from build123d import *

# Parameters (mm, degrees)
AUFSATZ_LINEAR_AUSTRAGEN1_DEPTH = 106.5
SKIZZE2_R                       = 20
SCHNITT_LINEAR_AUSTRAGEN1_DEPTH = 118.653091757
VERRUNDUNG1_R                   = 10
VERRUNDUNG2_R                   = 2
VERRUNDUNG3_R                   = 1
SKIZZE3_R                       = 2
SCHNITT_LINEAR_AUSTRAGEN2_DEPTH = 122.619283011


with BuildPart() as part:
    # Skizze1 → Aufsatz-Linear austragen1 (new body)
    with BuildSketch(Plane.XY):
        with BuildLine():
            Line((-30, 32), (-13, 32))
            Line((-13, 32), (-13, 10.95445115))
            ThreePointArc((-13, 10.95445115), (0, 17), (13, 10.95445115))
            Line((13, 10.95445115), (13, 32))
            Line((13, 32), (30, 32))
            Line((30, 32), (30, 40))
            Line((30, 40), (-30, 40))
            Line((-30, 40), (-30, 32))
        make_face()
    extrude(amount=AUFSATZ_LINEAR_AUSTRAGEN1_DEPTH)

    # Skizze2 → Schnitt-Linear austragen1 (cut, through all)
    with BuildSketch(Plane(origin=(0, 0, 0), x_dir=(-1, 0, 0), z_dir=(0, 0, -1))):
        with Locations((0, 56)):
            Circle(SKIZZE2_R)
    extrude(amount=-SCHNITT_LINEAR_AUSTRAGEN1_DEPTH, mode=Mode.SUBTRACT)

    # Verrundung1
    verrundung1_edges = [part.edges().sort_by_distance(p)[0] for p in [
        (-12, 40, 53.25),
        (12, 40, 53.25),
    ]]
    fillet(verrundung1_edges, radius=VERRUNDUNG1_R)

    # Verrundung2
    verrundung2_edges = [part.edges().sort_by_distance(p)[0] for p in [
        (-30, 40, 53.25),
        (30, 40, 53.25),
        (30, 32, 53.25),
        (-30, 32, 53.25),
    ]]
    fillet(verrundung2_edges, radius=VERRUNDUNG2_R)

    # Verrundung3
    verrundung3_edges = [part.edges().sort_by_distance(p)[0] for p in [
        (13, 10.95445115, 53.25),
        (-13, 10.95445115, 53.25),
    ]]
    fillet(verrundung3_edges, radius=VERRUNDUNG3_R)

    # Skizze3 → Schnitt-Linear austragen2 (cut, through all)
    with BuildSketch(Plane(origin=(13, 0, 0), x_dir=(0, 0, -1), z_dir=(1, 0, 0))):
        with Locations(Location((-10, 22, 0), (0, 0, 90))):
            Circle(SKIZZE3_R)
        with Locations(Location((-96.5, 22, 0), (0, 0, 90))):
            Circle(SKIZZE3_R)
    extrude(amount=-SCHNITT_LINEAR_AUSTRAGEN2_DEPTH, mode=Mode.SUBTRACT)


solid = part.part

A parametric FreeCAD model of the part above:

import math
import FreeCAD as App
import Part
import Sketcher
from FreeCAD import Vector
Q = App.Units.Quantity


def edges_at(feature, points):
    """Names of the edges that pass closest to the given points."""
    edges = feature.Shape.Edges
    near = lambda p: min(range(len(edges)), key=lambda i: edges[i].distToShape(Part.Vertex(*p))[0])
    return sorted({f"Edge{near(p) + 1}" for p in points})

doc = App.newDocument("Part")
body = doc.addObject("PartDesign::Body", "Body")

# Sketch on XY plane
sketch1 = body.newObject("Sketcher::SketchObject", "Sketch")
sketch1.AttachmentSupport = (doc.getObject("XY_Plane"), [""])
sketch1.MapMode = "FlatFace"
sketch1.addGeometry([
    Part.LineSegment(Vector(-30, 32, 0), Vector(-13, 32, 0)),  # 0
    Part.LineSegment(Vector(-13, 32, 0), Vector(-13, 11, 0)),  # 1
    Part.ArcOfCircle(Part.Circle(Vector(0, 0, 0), Vector(0, 0, 1), 17), math.radians(40), math.radians(140)),  # 2
    Part.LineSegment(Vector(13, 11, 0), Vector(13, 32, 0)),  # 3
    Part.LineSegment(Vector(13, 32, 0), Vector(30, 32, 0)),  # 4
    Part.LineSegment(Vector(30, 32, 0), Vector(30, 40, 0)),  # 5
    Part.LineSegment(Vector(30, 40, 0), Vector(-30, 40, 0)),  # 6
    Part.LineSegment(Vector(-30, 40, 0), Vector(-30, 32, 0)),  # 7
], False)
sketch1.addConstraint([
    Sketcher.Constraint("Coincident", 0, 2, 1, 1),
    Sketcher.Constraint("Coincident", 1, 2, 2, 2),
    Sketcher.Constraint("Coincident", 2, 1, 3, 1),
    Sketcher.Constraint("Coincident", 3, 2, 4, 1),
    Sketcher.Constraint("Coincident", 4, 2, 5, 1),
    Sketcher.Constraint("Coincident", 5, 2, 6, 1),
    Sketcher.Constraint("Coincident", 6, 2, 7, 1),
    Sketcher.Constraint("Coincident", 7, 2, 0, 1),
    Sketcher.Constraint("Horizontal", 0),
    Sketcher.Constraint("Vertical", 1),
    Sketcher.Constraint("Vertical", 3),
    Sketcher.Constraint("Horizontal", 4),
    Sketcher.Constraint("Vertical", 5),
    Sketcher.Constraint("Horizontal", 6),
    Sketcher.Constraint("Vertical", 7),
    Sketcher.Constraint("Coincident", 2, 3, -1, 1),
    Sketcher.Constraint("Symmetric", 0, 2, 3, 2, -2),
    Sketcher.Constraint("Equal", 0, 4),
    Sketcher.Constraint("Radius", 2, Q("17 mm")),
    Sketcher.Constraint("DistanceX", 0, 1, 0, 2, Q("17 mm")),
    Sketcher.Constraint("DistanceX", 6, 2, 6, 1, Q("60 mm")),
    Sketcher.Constraint("DistanceY", 5, 1, 5, 2, Q("8 mm")),
    Sketcher.Constraint("DistanceY", -1, 1, 0, 2, Q("32 mm")),
])
pad1 = body.newObject("PartDesign::Pad", "Pad")
pad1.Profile = sketch1
pad1.Length = 106.5

# Sketch on XY plane
sketch2 = body.newObject("Sketcher::SketchObject", "Sketch001")
sketch2.AttachmentSupport = (doc.getObject("XY_Plane"), [""])
sketch2.MapMode = "FlatFace"
sketch2.addGeometry(Part.Circle(Vector(0, 56, 0), Vector(0, 0, 1), 20), False)
sketch2.addConstraint([
    Sketcher.Constraint("PointOnObject", 0, 3, -2),
    Sketcher.Constraint("Diameter", 0, Q("40 mm")),
    Sketcher.Constraint("DistanceY", -1, 1, 0, 3, Q("56 mm")),
])
pocket1 = body.newObject("PartDesign::Pocket", "Pocket")
pocket1.Profile = sketch2
pocket1.Type = "ThroughAll"
pocket1.Reversed = True
doc.recompute()

fillet = body.newObject("PartDesign::Fillet", "Fillet")
fillet.Base = (pocket1, edges_at(pocket1, [(-12, 40, 53.25), (12, 40, 53.25)]))
fillet.Radius = 10
doc.recompute()

fillet2 = body.newObject("PartDesign::Fillet", "Fillet001")
fillet2.Base = (fillet, edges_at(fillet, [
    (-30, 40, 53.25),
    (30, 40, 53.25),
    (30, 32, 53.25),
    (-30, 32, 53.25),
]))
fillet2.Radius = 2
doc.recompute()

fillet3 = body.newObject("PartDesign::Fillet", "Fillet002")
fillet3.Base = (fillet2, edges_at(fillet2, [(13, 10.954, 53.25), (-13, 10.954, 53.25)]))
fillet3.Radius = 1

# Sketch on YZ plane
sketch3 = body.newObject("Sketcher::SketchObject", "Sketch002")
sketch3.AttachmentSupport = (doc.getObject("YZ_Plane"), [""])
sketch3.MapMode = "FlatFace"
sketch3.AttachmentOffset = App.Placement(Vector(0, 0, 13), App.Rotation())
sketch3.addGeometry([
    Part.Circle(Vector(22, 10, 0), Vector(0, 0, 1), 2),
    Part.Circle(Vector(22, 96.5, 0), Vector(0, 0, 1), 2),
], False)
sketch3.addConstraint([
    Sketcher.Constraint("Equal", 0, 1),
    Sketcher.Constraint("Vertical", 0, 3, 1, 3),
    Sketcher.Constraint("Diameter", 0, Q("4 mm")),
    Sketcher.Constraint("DistanceX", -1, 1, 0, 3, Q("22 mm")),
    Sketcher.Constraint("DistanceY", -1, 1, 0, 3, Q("10 mm")),
    Sketcher.Constraint("DistanceY", -1, 1, 1, 3, Q("96.5 mm")),
])
pocket2 = body.newObject("PartDesign::Pocket", "Pocket001")
pocket2.Profile = sketch3
pocket2.Type = "ThroughAll"

doc.recompute()
